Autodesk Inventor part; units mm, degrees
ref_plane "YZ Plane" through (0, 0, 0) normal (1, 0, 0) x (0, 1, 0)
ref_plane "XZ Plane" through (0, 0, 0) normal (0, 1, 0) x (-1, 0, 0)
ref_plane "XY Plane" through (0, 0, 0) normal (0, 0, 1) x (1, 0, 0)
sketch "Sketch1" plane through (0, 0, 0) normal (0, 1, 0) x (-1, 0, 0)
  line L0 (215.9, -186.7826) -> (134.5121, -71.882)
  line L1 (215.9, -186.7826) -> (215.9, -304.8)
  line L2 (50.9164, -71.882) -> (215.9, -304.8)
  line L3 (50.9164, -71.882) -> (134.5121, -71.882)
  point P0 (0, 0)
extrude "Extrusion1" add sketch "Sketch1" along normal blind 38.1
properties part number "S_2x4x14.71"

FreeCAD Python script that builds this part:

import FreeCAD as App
import Part
import Sketcher

V = App.Vector
Q = App.Units.Quantity


def add_polygon(sketch, points):
    """Adds a closed chain of lines whose ends are joined by coincident constraints."""
    first, n = sketch.GeometryCount, len(points)
    for a, b in zip(points, points[1:] + points[:1]):
        sketch.addGeometry(Part.LineSegment(App.Vector(*a, 0), App.Vector(*b, 0)), False)
    for i in range(n):
        sketch.addConstraint(Sketcher.Constraint("Coincident", first + i, 2, first + (i + 1) % n, 1))

doc = App.newDocument("Part")
params = doc.addObject("Spreadsheet::Sheet", "Params")
for row, (alias, value) in enumerate([
    ("pad1_length", "1.5 in"),
], start=1):
    params.set(f"A{row}", alias)
    params.set(f"B{row}", "=" + value)
    params.setAlias(f"B{row}", alias)

body = doc.addObject("PartDesign::Body", "Body")

# Sketch on XZ plane
sketch1 = body.newObject("Sketcher::SketchObject", "Sketch")
sketch1.AttachmentSupport = (doc.getObject("XZ_Plane"), [""])
sketch1.MapMode = "FlatFace"
add_polygon(sketch1, [(-216, -305), (-216, -187), (-135, -72), (-51, -72)])  # lines 0-3
sketch1.addConstraint([
    Sketcher.Constraint("Vertical", 0),
    Sketcher.Constraint("Horizontal", 2),
    Sketcher.Constraint("Parallel", 1, 3),
    Sketcher.Constraint("DistanceY", 3, 2, -1, 1, Q("12 in")),
    Sketcher.Constraint("DistanceX", 0, 2, -1, 1, Q("8.5 in")),
    Sketcher.Constraint("DistanceY", 1, 2, -1, 1, Q("2.83 in")),
    Sketcher.Constraint("Distance", 3, Q("11.2374 in")),
    Sketcher.Constraint("DistanceX", 2, 1, 2, 2, Q("83.5957 mm")),
])
pad1 = body.newObject("PartDesign::Pad", "Pad")
pad1.Profile = sketch1
pad1.setExpression("Length", "Params.pad1_length")
pad1.Reversed = True

doc.recompute()
